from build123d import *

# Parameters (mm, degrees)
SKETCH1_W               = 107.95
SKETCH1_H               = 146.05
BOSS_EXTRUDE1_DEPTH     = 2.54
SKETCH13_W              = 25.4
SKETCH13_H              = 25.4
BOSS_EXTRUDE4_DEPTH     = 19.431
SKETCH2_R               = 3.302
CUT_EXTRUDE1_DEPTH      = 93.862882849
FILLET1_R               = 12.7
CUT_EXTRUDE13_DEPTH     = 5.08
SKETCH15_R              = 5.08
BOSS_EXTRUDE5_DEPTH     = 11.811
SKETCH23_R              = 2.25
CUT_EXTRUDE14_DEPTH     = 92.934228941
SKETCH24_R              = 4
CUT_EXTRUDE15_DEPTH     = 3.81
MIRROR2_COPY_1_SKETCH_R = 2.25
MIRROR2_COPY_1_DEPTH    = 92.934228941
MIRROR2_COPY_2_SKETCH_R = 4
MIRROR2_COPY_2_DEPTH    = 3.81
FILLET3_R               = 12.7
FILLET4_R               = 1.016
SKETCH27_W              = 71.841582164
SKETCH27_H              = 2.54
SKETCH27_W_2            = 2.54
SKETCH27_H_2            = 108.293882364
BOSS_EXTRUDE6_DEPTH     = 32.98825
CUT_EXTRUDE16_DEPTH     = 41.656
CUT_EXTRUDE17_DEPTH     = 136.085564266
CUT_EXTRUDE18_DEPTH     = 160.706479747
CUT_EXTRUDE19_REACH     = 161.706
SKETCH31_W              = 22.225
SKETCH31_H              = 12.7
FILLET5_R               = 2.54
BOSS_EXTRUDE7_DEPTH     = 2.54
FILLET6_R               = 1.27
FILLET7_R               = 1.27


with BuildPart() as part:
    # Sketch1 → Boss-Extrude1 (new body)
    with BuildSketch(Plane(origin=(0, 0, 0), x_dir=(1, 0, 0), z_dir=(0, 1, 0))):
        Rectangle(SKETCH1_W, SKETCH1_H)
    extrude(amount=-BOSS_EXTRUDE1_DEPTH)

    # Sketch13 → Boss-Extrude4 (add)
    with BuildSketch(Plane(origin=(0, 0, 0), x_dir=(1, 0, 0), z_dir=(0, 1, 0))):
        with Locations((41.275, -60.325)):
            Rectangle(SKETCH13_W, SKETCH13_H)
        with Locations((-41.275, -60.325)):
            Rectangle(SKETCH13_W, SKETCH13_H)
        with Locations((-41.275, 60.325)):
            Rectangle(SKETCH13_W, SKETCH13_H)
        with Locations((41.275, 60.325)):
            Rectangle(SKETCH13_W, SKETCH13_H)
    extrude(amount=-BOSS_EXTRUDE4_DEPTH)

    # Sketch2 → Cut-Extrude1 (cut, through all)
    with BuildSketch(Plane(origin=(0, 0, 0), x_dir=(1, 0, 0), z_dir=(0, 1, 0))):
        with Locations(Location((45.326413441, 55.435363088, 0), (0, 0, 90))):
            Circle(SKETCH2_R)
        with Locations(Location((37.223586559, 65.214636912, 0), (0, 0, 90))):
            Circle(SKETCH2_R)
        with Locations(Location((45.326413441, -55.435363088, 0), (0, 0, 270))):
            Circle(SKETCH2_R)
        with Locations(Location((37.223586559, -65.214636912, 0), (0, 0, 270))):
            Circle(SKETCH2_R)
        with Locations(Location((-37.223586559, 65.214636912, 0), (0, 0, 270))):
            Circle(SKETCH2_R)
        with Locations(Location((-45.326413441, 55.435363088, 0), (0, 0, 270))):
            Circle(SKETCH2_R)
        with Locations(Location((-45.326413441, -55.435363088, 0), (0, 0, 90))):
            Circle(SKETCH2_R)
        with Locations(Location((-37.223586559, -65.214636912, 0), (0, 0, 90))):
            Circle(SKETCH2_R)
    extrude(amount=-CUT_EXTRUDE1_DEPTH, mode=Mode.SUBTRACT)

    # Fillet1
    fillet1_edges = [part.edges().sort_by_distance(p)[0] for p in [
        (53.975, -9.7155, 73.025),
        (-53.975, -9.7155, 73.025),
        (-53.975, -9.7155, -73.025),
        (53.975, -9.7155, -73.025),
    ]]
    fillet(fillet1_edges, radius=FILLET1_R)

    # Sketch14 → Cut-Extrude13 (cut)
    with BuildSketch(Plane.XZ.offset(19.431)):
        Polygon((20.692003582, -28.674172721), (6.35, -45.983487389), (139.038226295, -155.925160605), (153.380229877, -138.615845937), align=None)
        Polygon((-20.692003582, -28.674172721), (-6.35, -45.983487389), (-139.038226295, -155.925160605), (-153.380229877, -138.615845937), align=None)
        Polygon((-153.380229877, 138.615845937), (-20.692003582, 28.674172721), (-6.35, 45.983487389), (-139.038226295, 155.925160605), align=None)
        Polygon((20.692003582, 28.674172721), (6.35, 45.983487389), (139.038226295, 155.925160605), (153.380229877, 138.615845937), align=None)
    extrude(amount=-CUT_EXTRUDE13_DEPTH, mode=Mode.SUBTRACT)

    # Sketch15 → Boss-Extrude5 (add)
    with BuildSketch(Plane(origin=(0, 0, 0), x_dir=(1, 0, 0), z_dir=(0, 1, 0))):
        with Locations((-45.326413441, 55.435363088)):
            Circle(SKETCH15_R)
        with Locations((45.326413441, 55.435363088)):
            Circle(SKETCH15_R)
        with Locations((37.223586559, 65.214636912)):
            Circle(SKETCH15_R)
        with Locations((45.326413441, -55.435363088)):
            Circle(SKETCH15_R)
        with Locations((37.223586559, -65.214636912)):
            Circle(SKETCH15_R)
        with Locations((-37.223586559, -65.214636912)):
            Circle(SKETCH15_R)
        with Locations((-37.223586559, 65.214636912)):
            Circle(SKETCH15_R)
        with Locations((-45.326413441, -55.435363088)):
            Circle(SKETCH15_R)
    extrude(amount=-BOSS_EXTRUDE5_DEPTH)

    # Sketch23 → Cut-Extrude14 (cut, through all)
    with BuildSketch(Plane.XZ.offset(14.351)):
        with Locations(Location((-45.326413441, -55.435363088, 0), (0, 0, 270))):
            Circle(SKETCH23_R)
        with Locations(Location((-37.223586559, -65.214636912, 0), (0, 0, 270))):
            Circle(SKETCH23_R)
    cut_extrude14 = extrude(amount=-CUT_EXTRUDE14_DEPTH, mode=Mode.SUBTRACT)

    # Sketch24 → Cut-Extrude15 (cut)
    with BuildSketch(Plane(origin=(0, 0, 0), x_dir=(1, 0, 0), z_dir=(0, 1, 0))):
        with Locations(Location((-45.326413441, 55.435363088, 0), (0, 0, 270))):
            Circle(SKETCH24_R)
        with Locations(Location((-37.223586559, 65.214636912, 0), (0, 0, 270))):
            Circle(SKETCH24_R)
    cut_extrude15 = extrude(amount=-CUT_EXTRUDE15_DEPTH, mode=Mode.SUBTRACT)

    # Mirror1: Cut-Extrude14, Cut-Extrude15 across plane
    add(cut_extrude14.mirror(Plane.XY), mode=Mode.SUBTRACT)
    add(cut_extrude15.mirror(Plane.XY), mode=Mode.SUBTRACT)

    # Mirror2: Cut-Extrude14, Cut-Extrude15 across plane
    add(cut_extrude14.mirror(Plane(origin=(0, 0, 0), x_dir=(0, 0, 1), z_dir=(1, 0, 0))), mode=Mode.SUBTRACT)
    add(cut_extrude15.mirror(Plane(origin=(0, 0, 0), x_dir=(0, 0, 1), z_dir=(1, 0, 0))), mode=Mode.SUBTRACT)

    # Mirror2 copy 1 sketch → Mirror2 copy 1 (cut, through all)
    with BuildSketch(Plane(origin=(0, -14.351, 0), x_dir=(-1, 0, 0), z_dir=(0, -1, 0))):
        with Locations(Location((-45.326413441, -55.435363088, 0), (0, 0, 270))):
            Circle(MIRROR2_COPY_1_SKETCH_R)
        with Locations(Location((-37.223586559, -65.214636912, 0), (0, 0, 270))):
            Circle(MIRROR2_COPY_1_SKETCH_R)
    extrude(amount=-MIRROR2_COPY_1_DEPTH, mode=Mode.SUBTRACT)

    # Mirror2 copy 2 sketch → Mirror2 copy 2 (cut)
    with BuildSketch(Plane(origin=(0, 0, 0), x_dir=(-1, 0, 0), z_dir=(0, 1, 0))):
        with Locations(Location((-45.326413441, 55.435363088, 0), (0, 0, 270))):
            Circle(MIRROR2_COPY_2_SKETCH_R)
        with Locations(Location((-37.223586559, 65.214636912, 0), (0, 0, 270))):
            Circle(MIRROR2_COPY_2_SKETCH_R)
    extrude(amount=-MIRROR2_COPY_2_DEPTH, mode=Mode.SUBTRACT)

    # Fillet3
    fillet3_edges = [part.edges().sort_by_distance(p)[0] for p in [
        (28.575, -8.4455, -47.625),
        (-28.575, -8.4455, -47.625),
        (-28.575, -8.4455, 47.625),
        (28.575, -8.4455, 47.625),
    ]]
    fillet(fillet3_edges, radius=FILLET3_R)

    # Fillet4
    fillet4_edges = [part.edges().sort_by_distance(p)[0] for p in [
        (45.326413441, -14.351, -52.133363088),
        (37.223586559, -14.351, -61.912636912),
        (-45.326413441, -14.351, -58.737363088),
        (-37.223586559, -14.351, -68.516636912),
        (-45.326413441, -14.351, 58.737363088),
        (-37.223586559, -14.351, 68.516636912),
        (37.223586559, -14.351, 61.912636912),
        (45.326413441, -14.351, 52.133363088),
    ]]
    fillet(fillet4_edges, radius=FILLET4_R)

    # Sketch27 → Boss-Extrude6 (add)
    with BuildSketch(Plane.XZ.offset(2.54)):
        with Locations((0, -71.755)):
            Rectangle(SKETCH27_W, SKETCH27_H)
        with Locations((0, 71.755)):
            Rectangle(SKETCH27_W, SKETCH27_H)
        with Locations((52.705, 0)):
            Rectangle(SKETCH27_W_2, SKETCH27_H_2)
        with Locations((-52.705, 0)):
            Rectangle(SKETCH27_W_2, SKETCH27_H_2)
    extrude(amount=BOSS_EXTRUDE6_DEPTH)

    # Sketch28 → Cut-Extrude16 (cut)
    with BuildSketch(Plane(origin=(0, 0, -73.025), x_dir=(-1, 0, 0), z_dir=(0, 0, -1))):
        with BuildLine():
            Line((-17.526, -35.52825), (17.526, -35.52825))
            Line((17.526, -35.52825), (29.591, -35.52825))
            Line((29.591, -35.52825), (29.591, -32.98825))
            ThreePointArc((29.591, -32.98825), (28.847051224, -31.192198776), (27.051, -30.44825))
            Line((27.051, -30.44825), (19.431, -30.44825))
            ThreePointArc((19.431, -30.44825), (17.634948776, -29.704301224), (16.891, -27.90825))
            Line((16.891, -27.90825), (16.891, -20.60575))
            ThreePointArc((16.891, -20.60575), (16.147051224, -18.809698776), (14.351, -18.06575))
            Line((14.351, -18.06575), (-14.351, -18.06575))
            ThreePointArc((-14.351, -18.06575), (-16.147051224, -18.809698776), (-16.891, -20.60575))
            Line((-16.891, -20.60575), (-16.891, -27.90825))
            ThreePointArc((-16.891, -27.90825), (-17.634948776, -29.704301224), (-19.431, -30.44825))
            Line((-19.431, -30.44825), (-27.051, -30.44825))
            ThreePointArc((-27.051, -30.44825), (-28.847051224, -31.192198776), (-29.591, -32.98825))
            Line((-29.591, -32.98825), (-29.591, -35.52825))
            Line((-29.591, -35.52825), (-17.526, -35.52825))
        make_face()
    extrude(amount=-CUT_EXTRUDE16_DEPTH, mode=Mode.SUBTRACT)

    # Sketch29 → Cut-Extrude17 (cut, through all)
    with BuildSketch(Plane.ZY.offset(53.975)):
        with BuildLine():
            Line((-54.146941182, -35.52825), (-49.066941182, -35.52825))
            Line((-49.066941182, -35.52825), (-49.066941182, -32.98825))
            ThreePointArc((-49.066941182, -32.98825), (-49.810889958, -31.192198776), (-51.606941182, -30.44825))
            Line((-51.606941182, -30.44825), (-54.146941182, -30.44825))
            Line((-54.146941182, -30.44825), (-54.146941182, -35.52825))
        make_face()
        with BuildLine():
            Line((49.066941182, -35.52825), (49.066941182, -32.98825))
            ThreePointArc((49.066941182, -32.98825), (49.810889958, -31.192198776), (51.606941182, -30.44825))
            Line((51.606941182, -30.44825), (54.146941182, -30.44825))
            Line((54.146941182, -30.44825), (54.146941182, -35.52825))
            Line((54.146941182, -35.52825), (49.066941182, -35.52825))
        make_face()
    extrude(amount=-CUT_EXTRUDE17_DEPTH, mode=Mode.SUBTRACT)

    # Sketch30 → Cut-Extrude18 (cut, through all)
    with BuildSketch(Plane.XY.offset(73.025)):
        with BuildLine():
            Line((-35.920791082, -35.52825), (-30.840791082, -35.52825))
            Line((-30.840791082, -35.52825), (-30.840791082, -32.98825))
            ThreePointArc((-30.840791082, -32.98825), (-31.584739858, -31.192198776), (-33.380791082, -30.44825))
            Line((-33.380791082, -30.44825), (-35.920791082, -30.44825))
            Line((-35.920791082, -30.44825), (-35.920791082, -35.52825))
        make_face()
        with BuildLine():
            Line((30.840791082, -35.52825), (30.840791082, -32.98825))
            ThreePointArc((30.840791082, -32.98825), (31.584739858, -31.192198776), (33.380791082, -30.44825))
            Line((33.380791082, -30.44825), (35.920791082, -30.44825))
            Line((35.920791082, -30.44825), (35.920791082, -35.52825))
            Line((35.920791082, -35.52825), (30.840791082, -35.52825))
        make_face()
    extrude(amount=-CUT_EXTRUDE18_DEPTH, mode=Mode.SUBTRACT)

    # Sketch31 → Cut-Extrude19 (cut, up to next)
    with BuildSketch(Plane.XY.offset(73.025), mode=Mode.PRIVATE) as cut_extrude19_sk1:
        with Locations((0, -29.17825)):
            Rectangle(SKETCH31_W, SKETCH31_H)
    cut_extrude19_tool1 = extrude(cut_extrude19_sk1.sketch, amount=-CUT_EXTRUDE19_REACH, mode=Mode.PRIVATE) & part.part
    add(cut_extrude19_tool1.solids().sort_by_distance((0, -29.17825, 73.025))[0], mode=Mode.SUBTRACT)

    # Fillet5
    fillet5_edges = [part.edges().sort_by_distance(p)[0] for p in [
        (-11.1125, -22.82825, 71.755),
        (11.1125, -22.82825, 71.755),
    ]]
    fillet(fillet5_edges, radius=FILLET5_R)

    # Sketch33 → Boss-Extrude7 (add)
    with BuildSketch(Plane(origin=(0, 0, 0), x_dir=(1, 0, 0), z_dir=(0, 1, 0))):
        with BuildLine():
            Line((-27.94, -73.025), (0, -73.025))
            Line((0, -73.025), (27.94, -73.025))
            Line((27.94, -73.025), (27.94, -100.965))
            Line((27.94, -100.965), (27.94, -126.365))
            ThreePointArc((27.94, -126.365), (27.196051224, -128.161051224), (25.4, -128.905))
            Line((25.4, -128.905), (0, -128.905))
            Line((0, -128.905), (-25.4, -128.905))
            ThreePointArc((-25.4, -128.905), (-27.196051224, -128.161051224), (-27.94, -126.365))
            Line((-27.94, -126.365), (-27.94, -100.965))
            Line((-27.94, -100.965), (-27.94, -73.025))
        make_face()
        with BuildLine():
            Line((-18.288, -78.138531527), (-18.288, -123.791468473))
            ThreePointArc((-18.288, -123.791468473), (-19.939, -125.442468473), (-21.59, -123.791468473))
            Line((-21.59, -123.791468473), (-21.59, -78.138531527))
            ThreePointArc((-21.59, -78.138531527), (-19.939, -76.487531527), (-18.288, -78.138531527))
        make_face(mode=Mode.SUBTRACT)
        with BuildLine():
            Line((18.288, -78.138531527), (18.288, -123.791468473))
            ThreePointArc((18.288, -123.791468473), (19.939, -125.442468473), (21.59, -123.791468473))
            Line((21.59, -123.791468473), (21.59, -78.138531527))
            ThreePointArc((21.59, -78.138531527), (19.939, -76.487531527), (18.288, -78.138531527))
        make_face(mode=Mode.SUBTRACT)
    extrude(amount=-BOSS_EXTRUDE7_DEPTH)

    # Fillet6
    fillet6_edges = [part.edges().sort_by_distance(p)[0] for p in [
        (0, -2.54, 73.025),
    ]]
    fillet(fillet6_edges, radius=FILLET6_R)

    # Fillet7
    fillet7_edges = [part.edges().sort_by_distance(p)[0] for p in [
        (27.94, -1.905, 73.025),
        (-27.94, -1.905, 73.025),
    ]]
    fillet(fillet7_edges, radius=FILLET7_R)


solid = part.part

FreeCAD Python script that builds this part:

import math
import FreeCAD as App
import Part
import Sketcher

V = App.Vector
Q = App.Units.Quantity


def edges_at(feature, points):
    """Names of the edges that pass closest to the given points."""
    edges = feature.Shape.Edges
    near = lambda p: min(range(len(edges)), key=lambda i: edges[i].distToShape(Part.Vertex(*p))[0])
    return sorted({f"Edge{near(p) + 1}" for p in points})

doc = App.newDocument("Part")
body = doc.addObject("PartDesign::Body", "Body")

# Sketch on XZ plane
sketch1 = body.newObject("Sketcher::SketchObject", "Sketch")
sketch1.AttachmentSupport = (doc.getObject("XZ_Plane"), [""])
sketch1.MapMode = "FlatFace"
sketch1.addGeometry([
    Part.LineSegment(V(-53.975, -73.025, 0), V(-53.975, 73.025, 0)),
    Part.LineSegment(V(-53.975, 73.025, 0), V(53.975, 73.025, 0)),
    Part.LineSegment(V(53.975, 73.025, 0), V(53.975, -73.025, 0)),
    Part.LineSegment(V(53.975, -73.025, 0), V(-53.975, -73.025, 0)),
], False)
sketch1.addConstraint([
    Sketcher.Constraint("Coincident", 0, 2, 1, 1),
    Sketcher.Constraint("Coincident", 1, 2, 2, 1),
    Sketcher.Constraint("Coincident", 2, 2, 3, 1),
    Sketcher.Constraint("Coincident", 3, 2, 0, 1),
    Sketcher.Constraint("Vertical", 0),
    Sketcher.Constraint("Horizontal", 1),
    Sketcher.Constraint("Vertical", 2),
    Sketcher.Constraint("Horizontal", 3),
    Sketcher.Constraint("Symmetric", 0, 2, 2, 2, -1, 1),
    Sketcher.Constraint("DistanceX", 1, 1, 1, 2, Q("4.25 in")),
    Sketcher.Constraint("DistanceY", 0, 1, 0, 2, Q("5.75 in")),
])
pad1 = body.newObject("PartDesign::Pad", "Pad")
pad1.Profile = sketch1
pad1.Length = Q("0.1 in")

# Sketch on XZ plane
sketch2 = body.newObject("Sketcher::SketchObject", "Sketch001")
sketch2.AttachmentSupport = (doc.getObject("XZ_Plane"), [""])
sketch2.MapMode = "FlatFace"
sketch2.addGeometry([
    Part.LineSegment(V(28.575, 47.625, 0), V(28.575, 73.025, 0)),  # 0
    Part.LineSegment(V(28.575, 73.025, 0), V(53.975, 73.025, 0)),  # 1
    Part.LineSegment(V(53.975, 73.025, 0), V(53.975, 47.625, 0)),  # 2
    Part.LineSegment(V(53.975, 47.625, 0), V(28.575, 47.625, 0)),  # 3
    Part.LineSegment(V(-53.975, 47.625, 0), V(-53.975, 73.025, 0)),  # 4
    Part.LineSegment(V(-53.975, 73.025, 0), V(-28.575, 73.025, 0)),  # 5
    Part.LineSegment(V(-28.575, 73.025, 0), V(-28.575, 47.625, 0)),  # 6
    Part.LineSegment(V(-28.575, 47.625, 0), V(-53.975, 47.625, 0)),  # 7
    Part.LineSegment(V(-53.975, -73.025, 0), V(-53.975, -47.625, 0)),  # 8
    Part.LineSegment(V(-53.975, -47.625, 0), V(-28.575, -47.625, 0)),  # 9
    Part.LineSegment(V(-28.575, -47.625, 0), V(-28.575, -73.025, 0)),  # 10
    Part.LineSegment(V(-28.575, -73.025, 0), V(-53.975, -73.025, 0)),  # 11
    Part.LineSegment(V(28.575, -73.025, 0), V(28.575, -47.625, 0)),  # 12
    Part.LineSegment(V(28.575, -47.625, 0), V(53.975, -47.625, 0)),  # 13
    Part.LineSegment(V(53.975, -47.625, 0), V(53.975, -73.025, 0)),  # 14
    Part.LineSegment(V(53.975, -73.025, 0), V(28.575, -73.025, 0)),  # 15
], False)
sketch2.addConstraint([
    Sketcher.Constraint("Coincident", 0, 2, 1, 1),
    Sketcher.Constraint("Coincident", 1, 2, 2, 1),
    Sketcher.Constraint("Coincident", 2, 2, 3, 1),
    Sketcher.Constraint("Coincident", 3, 2, 0, 1),
    Sketcher.Constraint("Coincident", 4, 2, 5, 1),
    Sketcher.Constraint("Coincident", 5, 2, 6, 1),
    Sketcher.Constraint("Coincident", 6, 2, 7, 1),
    Sketcher.Constraint("Coincident", 7, 2, 4, 1),
    Sketcher.Constraint("Coincident", 8, 2, 9, 1),
    Sketcher.Constraint("Coincident", 9, 2, 10, 1),
    Sketcher.Constraint("Coincident", 10, 2, 11, 1),
    Sketcher.Constraint("Coincident", 11, 2, 8, 1),
    Sketcher.Constraint("Coincident", 12, 2, 13, 1),
    Sketcher.Constraint("Coincident", 13, 2, 14, 1),
    Sketcher.Constraint("Coincident", 14, 2, 15, 1),
    Sketcher.Constraint("Coincident", 15, 2, 12, 1),
    Sketcher.Constraint("Vertical", 0),
    Sketcher.Constraint("Horizontal", 1),
    Sketcher.Constraint("Vertical", 2),
    Sketcher.Constraint("Horizontal", 3),
    Sketcher.Constraint("Vertical", 4),
    Sketcher.Constraint("Horizontal", 5),
    Sketcher.Constraint("Vertical", 6),
    Sketcher.Constraint("Horizontal", 7),
    Sketcher.Constraint("Vertical", 8),
    Sketcher.Constraint("Horizontal", 9),
    Sketcher.Constraint("Vertical", 10),
    Sketcher.Constraint("Horizontal", 11),
    Sketcher.Constraint("Vertical", 12),
    Sketcher.Constraint("Horizontal", 13),
    Sketcher.Constraint("Vertical", 14),
    Sketcher.Constraint("Horizontal", 15),
    Sketcher.Constraint("Symmetric", 2, 2, 8, 2, -1, 1),
    Sketcher.Constraint("Symmetric", 0, 2, 10, 2, -1, 1),
    Sketcher.Constraint("Symmetric", 6, 2, 12, 2, -1, 1),
    Sketcher.Constraint("Symmetric", 4, 2, 14, 2, -1, 1),
    Sketcher.Constraint("Symmetric", 1, 2, 4, 2, -2),
    Sketcher.Constraint("Symmetric", 3, 2, 6, 2, -2),
    Sketcher.Constraint("Equal", 15, 0),
    Sketcher.Constraint("DistanceX", 1, 1, 1, 2, Q("1 in")),
    Sketcher.Constraint("DistanceX", 4, 2, 0, 2, Q("3.25 in")),
    Sketcher.Constraint("DistanceY", 8, 2, 7, 2, Q("3.75 in")),
])
pad2 = body.newObject("PartDesign::Pad", "Pad001")
pad2.Profile = sketch2
pad2.Length = Q("0.765 in")

# Sketch on XZ plane
sketch3 = body.newObject("Sketcher::SketchObject", "Sketch002")
sketch3.AttachmentSupport = (doc.getObject("XZ_Plane"), [""])
sketch3.MapMode = "FlatFace"
sketch3.addGeometry([
    Part.Circle(V(45.326413, -55.435363, 0), V(0, 0, 1), 3.302),  # 0
    Part.Circle(V(37.223587, -65.214637, 0), V(0, 0, 1), 3.302),  # 1
    Part.Circle(V(45.326413, 55.435363, 0), V(0, 0, 1), 3.302),  # 2
    Part.Circle(V(37.223587, 65.214637, 0), V(0, 0, 1), 3.302),  # 3
    Part.Circle(V(-37.223587, -65.214637, 0), V(0, 0, 1), 3.302),  # 4
    Part.Circle(V(-45.326413, -55.435363, 0), V(0, 0, 1), 3.302),  # 5
    Part.Circle(V(-45.326413, 55.435363, 0), V(0, 0, 1), 3.302),  # 6
    Part.Circle(V(-37.223587, 65.214637, 0), V(0, 0, 1), 3.302),  # 7
], False)
sketch3.addConstraint([
    Sketcher.Constraint("Equal", 0, 1),
    Sketcher.Constraint("Equal", 1, 2),
    Sketcher.Constraint("Equal", 2, 3),
    Sketcher.Constraint("Equal", 3, 4),
    Sketcher.Constraint("Equal", 4, 5),
    Sketcher.Constraint("Equal", 5, 6),
    Sketcher.Constraint("Equal", 6, 7),
    Sketcher.Constraint("Symmetric", 3, 3, 4, 3, -1, 1),
    Sketcher.Constraint("Symmetric", 2, 3, 5, 3, -1, 1),
    Sketcher.Constraint("Symmetric", 0, 3, 6, 3, -1, 1),
    Sketcher.Constraint("Symmetric", 1, 3, 7, 3, -1, 1),
    Sketcher.Constraint("Symmetric", 1, 3, 4, 3, -2),
    Sketcher.Constraint("Symmetric", 0, 3, 5, 3, -2),
    Sketcher.Constraint("Diameter", 0, Q("0.26 in")),
    Sketcher.Constraint("DistanceY", 1, 3, 2, 3, Q("4.75 in")),
    Sketcher.Constraint("DistanceX", 4, 3, 0, 3, Q("3.25 in")),
    Sketcher.Constraint("DistanceX", -1, 1, 0, 3, Q("45.326413 mm")),
    Sketcher.Constraint("DistanceY", 0, 3, -1, 1, Q("55.435363 mm")),
])
pocket1 = body.newObject("PartDesign::Pocket", "Pocket")
pocket1.Profile = sketch3
pocket1.Type = "ThroughAll"
pocket1.Reversed = True
doc.recompute()

fillet = body.newObject("PartDesign::Fillet", "Fillet")
fillet.Base = (pocket1, edges_at(pocket1, [
    (53.975, -9.716, 73.025),
    (-53.975, -9.716, 73.025),
    (-53.975, -9.716, -73.025),
    (53.975, -9.716, -73.025),
]))
fillet.Radius = Q("0.5 in")

# Sketch on XZ plane
sketch4 = body.newObject("Sketcher::SketchObject", "Sketch003")
sketch4.AttachmentSupport = (doc.getObject("XZ_Plane"), [""])
sketch4.MapMode = "FlatFace"
sketch4.AttachmentOffset = App.Placement(V(0, 0, 0.765 * 25.4), App.Rotation())
sketch4.addGeometry([
    Part.LineSegment(V(20.692004, -28.674173, 0), V(6.35, -45.983487, 0)),  # 0
    Part.LineSegment(V(6.35, -45.983487, 0), V(139.038226, -155.925161, 0)),  # 1
    Part.LineSegment(V(139.038226, -155.925161, 0), V(153.38023, -138.615846, 0)),  # 2
    Part.LineSegment(V(153.38023, -138.615846, 0), V(20.692004, -28.674173, 0)),  # 3
    Part.LineSegment(V(-6.35, -45.983487, 0), V(-20.692004, -28.674173, 0)),  # 4
    Part.LineSegment(V(-20.692004, -28.674173, 0), V(-153.38023, -138.615846, 0)),  # 5
    Part.LineSegment(V(-153.38023, -138.615846, 0), V(-139.038226, -155.925161, 0)),  # 6
    Part.LineSegment(V(-139.038226, -155.925161, 0), V(-6.35, -45.983487, 0)),  # 7
    Part.LineSegment(V(-153.38023, 138.615846, 0), V(-20.692004, 28.674173, 0)),  # 8
    Part.LineSegment(V(-20.692004, 28.674173, 0), V(-6.35, 45.983487, 0)),  # 9
    Part.LineSegment(V(-6.35, 45.983487, 0), V(-139.038226, 155.925161, 0)),  # 10
    Part.LineSegment(V(-139.038226, 155.925161, 0), V(-153.38023, 138.615846, 0)),  # 11
    Part.LineSegment(V(6.35, 45.983487, 0), V(20.692004, 28.674173, 0)),  # 12
    Part.LineSegment(V(20.692004, 28.674173, 0), V(153.38023, 138.615846, 0)),  # 13
    Part.LineSegment(V(153.38023, 138.615846, 0), V(139.038226, 155.925161, 0)),  # 14
    Part.LineSegment(V(139.038226, 155.925161, 0), V(6.35, 45.983487, 0)),  # 15
], False)
sketch4.addConstraint([
    Sketcher.Constraint("Coincident", 0, 2, 1, 1),
    Sketcher.Constraint("Coincident", 1, 2, 2, 1),
    Sketcher.Constraint("Coincident", 2, 2, 3, 1),
    Sketcher.Constraint("Coincident", 3, 2, 0, 1),
    Sketcher.Constraint("Coincident", 4, 2, 5, 1),
    Sketcher.Constraint("Coincident", 5, 2, 6, 1),
    Sketcher.Constraint("Coincident", 6, 2, 7, 1),
    Sketcher.Constraint("Coincident", 7, 2, 4, 1),
    Sketcher.Constraint("Coincident", 8, 2, 9, 1),
    Sketcher.Constraint("Coincident", 9, 2, 10, 1),
    Sketcher.Constraint("Coincident", 10, 2, 11, 1),
    Sketcher.Constraint("Coincident", 11, 2, 8, 1),
    Sketcher.Constraint("Coincident", 12, 2, 13, 1),
    Sketcher.Constraint("Coincident", 13, 2, 14, 1),
    Sketcher.Constraint("Coincident", 14, 2, 15, 1),
    Sketcher.Constraint("Coincident", 15, 2, 12, 1),
    Sketcher.Constraint("Symmetric", 3, 2, 8, 2, -1, 1),
    Sketcher.Constraint("Symmetric", 0, 2, 9, 2, -1, 1),
    Sketcher.Constraint("Symmetric", 1, 2, 10, 2, -1, 1),
    Sketcher.Constraint("Symmetric", 2, 2, 11, 2, -1, 1),
    Sketcher.Constraint("Symmetric", 4, 2, 12, 2, -1, 1),
    Sketcher.Constraint("Symmetric", 5, 2, 13, 2, -1, 1),
    Sketcher.Constraint("Symmetric", 6, 2, 14, 2, -1, 1),
    Sketcher.Constraint("Symmetric", 7, 2, 15, 2, -1, 1),
    Sketcher.Constraint("Symmetric", 3, 2, 4, 2, -2),
    Sketcher.Constraint("Symmetric", 2, 2, 5, 2, -2),
    Sketcher.Constraint("Symmetric", 1, 2, 6, 2, -2),
    Sketcher.Constraint("Symmetric", 0, 2, 7, 2, -2),
    Sketcher.Constraint("Perpendicular", 0, 1),
    Sketcher.Constraint("Perpendicular", 1, 2),
    Sketcher.Constraint("Perpendicular", 2, 3),
    Sketcher.Constraint("DistanceX", 7, 2, 0, 2, Q("0.5 in")),
    Sketcher.Constraint("Distance", 0, Q("0.885 in")),
    Sketcher.Constraint("DistanceX", 3, 2, 1, 2, Q("4.6593001 in")),
    Sketcher.Constraint("DistanceY", 1, 2, -1, 1, Q("155.925161 mm")),
    Sketcher.Constraint("DistanceX", -1, 1, 2, 2, Q("153.38023 mm")),
])
pocket2 = body.newObject("PartDesign::Pocket", "Pocket001")
pocket2.Profile = sketch4
pocket2.Length = Q("0.2 in")

# Sketch on XZ plane
sketch5 = body.newObject("Sketcher::SketchObject", "Sketch004")
sketch5.AttachmentSupport = (doc.getObject("XZ_Plane"), [""])
sketch5.MapMode = "FlatFace"
sketch5.addGeometry([
    Part.Circle(V(-45.326413, -55.435363, 0), V(0, 0, 1), 5.08),  # 0
    Part.Circle(V(45.326413, -55.435363, 0), V(0, 0, 1), 5.08),  # 1
    Part.Circle(V(37.223587, -65.214637, 0), V(0, 0, 1), 5.08),  # 2
    Part.Circle(V(45.326413, 55.435363, 0), V(0, 0, 1), 5.08),  # 3
    Part.Circle(V(37.223587, 65.214637, 0), V(0, 0, 1), 5.08),  # 4
    Part.Circle(V(-37.223587, 65.214637, 0), V(0, 0, 1), 5.08),  # 5
    Part.Circle(V(-37.223587, -65.214637, 0), V(0, 0, 1), 5.08),  # 6
    Part.Circle(V(-45.326413, 55.435363, 0), V(0, 0, 1), 5.08),  # 7
], False)
sketch5.addConstraint([
    Sketcher.Constraint("Equal", 0, 1),
    Sketcher.Constraint("Equal", 1, 2),
    Sketcher.Constraint("Equal", 2, 3),
    Sketcher.Constraint("Equal", 3, 4),
    Sketcher.Constraint("Equal", 4, 5),
    Sketcher.Constraint("Equal", 5, 6),
    Sketcher.Constraint("Equal", 6, 7),
    Sketcher.Constraint("Symmetric", 0, 3, 3, 3, -1, 1),
    Sketcher.Constraint("Symmetric", 2, 3, 5, 3, -1, 1),
    Sketcher.Constraint("Symmetric", 4, 3, 6, 3, -1, 1),
    Sketcher.Constraint("Symmetric", 1, 3, 7, 3, -1, 1),
    Sketcher.Constraint("Symmetric", 0, 3, 1, 3, -2),
    Sketcher.Constraint("Symmetric", 4, 3, 5, 3, -2),
    Sketcher.Constraint("Diameter", 0, Q("0.4 in")),
    Sketcher.Constraint("DistanceX", 0, 3, 2, 3, Q("3.25 in")),
    Sketcher.Constraint("DistanceY", 2, 3, 3, 3, Q("4.75 in")),
    Sketcher.Constraint("DistanceX", 0, 3, -1, 1, Q("45.326413 mm")),
    Sketcher.Constraint("DistanceY", 0, 3, -1, 1, Q("55.435363 mm")),
])
pad3 = body.newObject("PartDesign::Pad", "Pad002")
pad3.Profile = sketch5
pad3.Length = Q("0.465 in")

# Sketch on XZ plane
sketch6 = body.newObject("Sketcher::SketchObject", "Sketch005")
sketch6.AttachmentSupport = (doc.getObject("XZ_Plane"), [""])
sketch6.MapMode = "FlatFace"
sketch6.AttachmentOffset = App.Placement(V(0, 0, 0.565 * 25.4), App.Rotation())
sketch6.addGeometry([
    Part.Circle(V(-45.326413, -55.435363, 0), V(0, 0, 1), 2.25),
    Part.Circle(V(-37.223587, -65.214637, 0), V(0, 0, 1), 2.25),
], False)
sketch6.addConstraint([
    Sketcher.Constraint("Equal", 0, 1),
    Sketcher.Constraint("Diameter", 0, Q("4.5 mm")),
    Sketcher.Constraint("DistanceX", 0, 3, -1, 1, Q("45.326413 mm")),
    Sketcher.Constraint("DistanceY", 0, 3, -1, 1, Q("55.435363 mm")),
    Sketcher.Constraint("DistanceX", 1, 3, -1, 1, Q("37.223587 mm")),
    Sketcher.Constraint("DistanceY", 1, 3, -1, 1, Q("65.214637 mm")),
])
pocket3 = body.newObject("PartDesign::Pocket", "Pocket002")
pocket3.Profile = sketch6
pocket3.Type = "ThroughAll"

# Sketch on XZ plane
sketch7 = body.newObject("Sketcher::SketchObject", "Sketch006")
sketch7.AttachmentSupport = (doc.getObject("XZ_Plane"), [""])
sketch7.MapMode = "FlatFace"
sketch7.addGeometry([
    Part.Circle(V(-45.326413, -55.435363, 0), V(0, 0, 1), 4),
    Part.Circle(V(-37.223587, -65.214637, 0), V(0, 0, 1), 4),
], False)
sketch7.addConstraint([
    Sketcher.Constraint("Equal", 0, 1),
    Sketcher.Constraint("Diameter", 0, Q("8 mm")),
    Sketcher.Constraint("DistanceX", 0, 3, -1, 1, Q("45.326413 mm")),
    Sketcher.Constraint("DistanceY", 0, 3, -1, 1, Q("55.435363 mm")),
    Sketcher.Constraint("DistanceX", 1, 3, -1, 1, Q("37.223587 mm")),
    Sketcher.Constraint("DistanceY", 1, 3, -1, 1, Q("65.214637 mm")),
])
pocket4 = body.newObject("PartDesign::Pocket", "Pocket003")
pocket4.Profile = sketch7
pocket4.Length = Q("0.15 in")
pocket4.Reversed = True
doc.recompute()

mirrored = body.newObject("PartDesign::Mirrored", "Mirrored")
mirrored.Originals = [pocket3, pocket4]
mirrored.MirrorPlane = (doc.getObject("XY_Plane"), [""])
body.Tip = mirrored
doc.recompute()

mirrored2 = body.newObject("PartDesign::Mirrored", "Mirrored001")
mirrored2.Originals = [pocket3, pocket4]
mirrored2.MirrorPlane = (doc.getObject("YZ_Plane"), [""])
body.Tip = mirrored2

# Sketch on XZ plane
sketch8 = body.newObject("Sketcher::SketchObject", "Sketch007")
sketch8.AttachmentSupport = (doc.getObject("XZ_Plane"), [""])
sketch8.MapMode = "FlatFace"
sketch8.AttachmentOffset = App.Placement(V(0, 0, 0.565 * 25.4), App.Rotation())
sketch8.addGeometry([
    Part.Circle(V(45.326413, 55.435363, 0), V(0, 0, 1), 2.25),
    Part.Circle(V(37.223587, 65.214637, 0), V(0, 0, 1), 2.25),
], False)
sketch8.addConstraint([
    Sketcher.Constraint("Equal", 0, 1),
    Sketcher.Constraint("Diameter", 0, Q("4.5 mm")),
    Sketcher.Constraint("DistanceX", -1, 1, 0, 3, Q("45.326413 mm")),
    Sketcher.Constraint("DistanceY", -1, 1, 0, 3, Q("55.435363 mm")),
    Sketcher.Constraint("DistanceX", -1, 1, 1, 3, Q("37.223587 mm")),
    Sketcher.Constraint("DistanceY", -1, 1, 1, 3, Q("65.214637 mm")),
])
pocket5 = body.newObject("PartDesign::Pocket", "Pocket004")
pocket5.Profile = sketch8
pocket5.Type = "ThroughAll"

# Sketch on XZ plane
sketch9 = body.newObject("Sketcher::SketchObject", "Sketch008")
sketch9.AttachmentSupport = (doc.getObject("XZ_Plane"), [""])
sketch9.MapMode = "FlatFace"
sketch9.addGeometry([
    Part.Circle(V(45.326413, 55.435363, 0), V(0, 0, 1), 4),
    Part.Circle(V(37.223587, 65.214637, 0), V(0, 0, 1), 4),
], False)
sketch9.addConstraint([
    Sketcher.Constraint("Equal", 0, 1),
    Sketcher.Constraint("Diameter", 0, Q("8 mm")),
    Sketcher.Constraint("DistanceX", -1, 1, 0, 3, Q("45.326413 mm")),
    Sketcher.Constraint("DistanceY", -1, 1, 0, 3, Q("55.435363 mm")),
    Sketcher.Constraint("DistanceX", -1, 1, 1, 3, Q("37.223587 mm")),
    Sketcher.Constraint("DistanceY", -1, 1, 1, 3, Q("65.214637 mm")),
])
pocket6 = body.newObject("PartDesign::Pocket", "Pocket005")
pocket6.Profile = sketch9
pocket6.Length = Q("0.15 in")
pocket6.Reversed = True
doc.recompute()

fillet2 = body.newObject("PartDesign::Fillet", "Fillet001")
fillet2.Base = (pocket6, edges_at(pocket6, [
    (28.575, -8.445, -47.625),
    (-28.575, -8.445, -47.625),
    (-28.575, -8.445, 47.625),
    (28.575, -8.445, 47.625),
]))
fillet2.Radius = Q("0.5 in")
doc.recompute()

fillet3 = body.newObject("PartDesign::Fillet", "Fillet002")
fillet3.Base = (fillet2, edges_at(fillet2, [
    (45.326, -14.351, -52.133),
    (37.224, -14.351, -61.913),
    (-45.326, -14.351, -58.737),
    (-37.224, -14.351, -68.517),
    (-45.326, -14.351, 58.737),
    (-37.224, -14.351, 68.517),
    (37.224, -14.351, 61.913),
    (45.326, -14.351, 52.133),
]))
fillet3.Radius = Q("0.04 in")

# Sketch on XZ plane
sketch10 = body.newObject("Sketcher::SketchObject", "Sketch009")
sketch10.AttachmentSupport = (doc.getObject("XZ_Plane"), [""])
sketch10.MapMode = "FlatFace"
sketch10.AttachmentOffset = App.Placement(V(0, 0, 0.1 * 25.4), App.Rotation())
sketch10.addGeometry([
    Part.LineSegment(V(-35.920791, -70.485, 0), V(-35.920791, -73.025, 0)),  # 0
    Part.LineSegment(V(-35.920791, -73.025, 0), V(35.920791, -73.025, 0)),  # 1
    Part.LineSegment(V(35.920791, -73.025, 0), V(35.920791, -70.485, 0)),  # 2
    Part.LineSegment(V(35.920791, -70.485, 0), V(-35.920791, -70.485, 0)),  # 3
    Part.LineSegment(V(-35.920791, 73.025, 0), V(-35.920791, 70.485, 0)),  # 4
    Part.LineSegment(V(-35.920791, 70.485, 0), V(35.920791, 70.485, 0)),  # 5
    Part.LineSegment(V(35.920791, 70.485, 0), V(35.920791, 73.025, 0)),  # 6
    Part.LineSegment(V(35.920791, 73.025, 0), V(-35.920791, 73.025, 0)),  # 7
    Part.LineSegment(V(51.435, 54.146941, 0), V(51.435, -54.146941, 0)),  # 8
    Part.LineSegment(V(51.435, -54.146941, 0), V(53.975, -54.146941, 0)),  # 9
    Part.LineSegment(V(53.975, -54.146941, 0), V(53.975, 54.146941, 0)),  # 10
    Part.LineSegment(V(53.975, 54.146941, 0), V(51.435, 54.146941, 0)),  # 11
    Part.LineSegment(V(-53.975, 54.146941, 0), V(-53.975, -54.146941, 0)),  # 12
    Part.LineSegment(V(-53.975, -54.146941, 0), V(-51.435, -54.146941, 0)),  # 13
    Part.LineSegment(V(-51.435, -54.146941, 0), V(-51.435, 54.146941, 0)),  # 14
    Part.LineSegment(V(-51.435, 54.146941, 0), V(-53.975, 54.146941, 0)),  # 15
], False)
sketch10.addConstraint([
    Sketcher.Constraint("Coincident", 0, 2, 1, 1),
    Sketcher.Constraint("Coincident", 1, 2, 2, 1),
    Sketcher.Constraint("Coincident", 2, 2, 3, 1),
    Sketcher.Constraint("Coincident", 3, 2, 0, 1),
    Sketcher.Constraint("Coincident", 4, 2, 5, 1),
    Sketcher.Constraint("Coincident", 5, 2, 6, 1),
    Sketcher.Constraint("Coincident", 6, 2, 7, 1),
    Sketcher.Constraint("Coincident", 7, 2, 4, 1),
    Sketcher.Constraint("Coincident", 8, 2, 9, 1),
    Sketcher.Constraint("Coincident", 9, 2, 10, 1),
    Sketcher.Constraint("Coincident", 10, 2, 11, 1),
    Sketcher.Constraint("Coincident", 11, 2, 8, 1),
    Sketcher.Constraint("Coincident", 12, 2, 13, 1),
    Sketcher.Constraint("Coincident", 13, 2, 14, 1),
    Sketcher.Constraint("Coincident", 14, 2, 15, 1),
    Sketcher.Constraint("Coincident", 15, 2, 12, 1),
    Sketcher.Constraint("Vertical", 0),
    Sketcher.Constraint("Horizontal", 1),
    Sketcher.Constraint("Vertical", 2),
    Sketcher.Constraint("Horizontal", 3),
    Sketcher.Constraint("Vertical", 4),
    Sketcher.Constraint("Horizontal", 5),
    Sketcher.Constraint("Vertical", 6),
    Sketcher.Constraint("Horizontal", 7),
    Sketcher.Constraint("Vertical", 8),
    Sketcher.Constraint("Horizontal", 9),
    Sketcher.Constraint("Vertical", 10),
    Sketcher.Constraint("Horizontal", 11),
    Sketcher.Constraint("Vertical", 12),
    Sketcher.Constraint("Horizontal", 13),
    Sketcher.Constraint("Vertical", 14),
    Sketcher.Constraint("Horizontal", 15),
    Sketcher.Constraint("Symmetric", 2, 2, 4, 2, -1, 1),
    Sketcher.Constraint("Symmetric", 0, 2, 6, 2, -1, 1),
    Sketcher.Constraint("Symmetric", 10, 2, 12, 2, -1, 1),
    Sketcher.Constraint("Symmetric", 8, 2, 14, 2, -1, 1),
    Sketcher.Constraint("Horizontal", 9, 2, 12, 2),
    Sketcher.Constraint("Vertical", 3, 2, 4, 2),
    Sketcher.Constraint("Equal", 15, 0),
    Sketcher.Constraint("DistanceX", 9, 1, 9, 2, Q("0.1 in")),
    Sketcher.Constraint("DistanceY", 3, 2, 4, 2, Q("5.55 in")),
    Sketcher.Constraint("DistanceX", 12, 2, 8, 2, Q("4.15 in")),
    Sketcher.Constraint("DistanceX", 1, 1, 1, 2, Q("71.841582 mm")),
    Sketcher.Constraint("DistanceY", 8, 2, 8, 1, Q("108.293882 mm")),
])
pad4 = body.newObject("PartDesign::Pad", "Pad003")
pad4.Profile = sketch10
pad4.Length = 32.98825

# Sketch on XY plane
sketch11 = body.newObject("Sketcher::SketchObject", "Sketch010")
sketch11.AttachmentSupport = (doc.getObject("XY_Plane"), [""])
sketch11.MapMode = "FlatFace"
sketch11.AttachmentOffset = App.Placement(V(0, 0, -2.875 * 25.4), App.Rotation())
sketch11.addGeometry([
    Part.LineSegment(V(-29.591, -35.52825, 0), V(-29.591, -32.98825, 0)),  # 0
    Part.ArcOfCircle(Part.Circle(V(-27.051, -32.98825, 0), V(0, 0, 1), 2.54), math.radians(90), math.radians(180)),  # 1
    Part.LineSegment(V(-27.051, -30.44825, 0), V(-19.431, -30.44825, 0)),  # 2
    Part.ArcOfCircle(Part.Circle(V(-19.431, -27.90825, 0), V(0, 0, 1), 2.54), math.radians(-90), math.radians(0)),  # 3
    Part.LineSegment(V(-16.891, -27.90825, 0), V(-16.891, -20.60575, 0)),  # 4
    Part.ArcOfCircle(Part.Circle(V(-14.351, -20.60575, 0), V(0, 0, 1), 2.54), math.radians(90), math.radians(180)),  # 5
    Part.LineSegment(V(-14.351, -18.06575, 0), V(14.351, -18.06575, 0)),  # 6
    Part.ArcOfCircle(Part.Circle(V(14.351, -20.60575, 0), V(0, 0, 1), 2.54), math.radians(0), math.radians(90)),  # 7
    Part.LineSegment(V(16.891, -20.60575, 0), V(16.891, -27.90825, 0)),  # 8
    Part.ArcOfCircle(Part.Circle(V(19.431, -27.90825, 0), V(0, 0, 1), 2.54), math.radians(-180), math.radians(-90)),  # 9
    Part.LineSegment(V(19.431, -30.44825, 0), V(27.051, -30.44825, 0)),  # 10
    Part.ArcOfCircle(Part.Circle(V(27.051, -32.98825, 0), V(0, 0, 1), 2.54), math.radians(0), math.radians(90)),  # 11
    Part.LineSegment(V(29.591, -32.98825, 0), V(29.591, -35.52825, 0)),  # 12
    Part.LineSegment(V(29.591, -35.52825, 0), V(-29.591, -35.52825, 0)),  # 13
], False)
sketch11.addConstraint([
    Sketcher.Constraint("Tangent", 0, 2, 1, 2),
    Sketcher.Constraint("Tangent", 1, 1, 2, 1),
    Sketcher.Constraint("Tangent", 2, 2, 3, 1),
    Sketcher.Constraint("Tangent", 3, 2, 4, 1),
    Sketcher.Constraint("Tangent", 4, 2, 5, 2),
    Sketcher.Constraint("Tangent", 5, 1, 6, 1),
    Sketcher.Constraint("Tangent", 6, 2, 7, 2),
    Sketcher.Constraint("Tangent", 7, 1, 8, 1),
    Sketcher.Constraint("Tangent", 8, 2, 9, 1),
    Sketcher.Constraint("Tangent", 9, 2, 10, 1),
    Sketcher.Constraint("Tangent", 10, 2, 11, 2),
    Sketcher.Constraint("Tangent", 11, 1, 12, 1),
    Sketcher.Constraint("Coincident", 12, 2, 13, 1),
    Sketcher.Constraint("Coincident", 13, 2, 0, 1),
    Sketcher.Constraint("Vertical", 0),
    Sketcher.Constraint("Horizontal", 2),
    Sketcher.Constraint("Vertical", 4),
    Sketcher.Constraint("Horizontal", 6),
    Sketcher.Constraint("Vertical", 8),
    Sketcher.Constraint("Horizontal", 10),
    Sketcher.Constraint("Vertical", 12),
    Sketcher.Constraint("Horizontal", 13),
    Sketcher.Constraint("Equal", 1, 3),
    Sketcher.Constraint("Equal", 3, 5),
    Sketcher.Constraint("Equal", 5, 7),
    Sketcher.Constraint("Equal", 7, 9),
    Sketcher.Constraint("Equal", 9, 11),
    Sketcher.Constraint("Symmetric", 3, 3, 9, 3, -2),
    Sketcher.Constraint("Equal", 2, 10),
    Sketcher.Constraint("Radius", 1, Q("0.1 in")),
    Sketcher.Constraint("DistanceX", 2, 1, 2, 2, Q("0.3 in")),
    Sketcher.Constraint("DistanceY", 0, 1, 0, 2, Q("0.1 in")),
    Sketcher.Constraint("DistanceX", 6, 1, 6, 2, Q("1.13 in")),
    Sketcher.Constraint("DistanceY", 4, 1, 4, 2, Q("0.2875 in")),
    Sketcher.Constraint("DistanceY", 1, 3, -1, 1, Q("32.98825 mm")),
])
pocket7 = body.newObject("PartDesign::Pocket", "Pocket006")
pocket7.Profile = sketch11
pocket7.Length = Q("1.64 in")
pocket7.Reversed = True

# Sketch on YZ plane
sketch12 = body.newObject("Sketcher::SketchObject", "Sketch011")
sketch12.AttachmentSupport = (doc.getObject("YZ_Plane"), [""])
sketch12.MapMode = "FlatFace"
sketch12.AttachmentOffset = App.Placement(V(0, 0, -2.125 * 25.4), App.Rotation())
sketch12.addGeometry([
    Part.LineSegment(V(-35.52825, -54.146941, 0), V(-35.52825, -49.066941, 0)),  # 0
    Part.LineSegment(V(-35.52825, -49.066941, 0), V(-32.98825, -49.066941, 0)),  # 1
    Part.ArcOfCircle(Part.Circle(V(-32.98825, -51.606941, 0), V(0, 0, 1), 2.54), math.radians(0), math.radians(90)),  # 2
    Part.LineSegment(V(-30.44825, -51.606941, 0), V(-30.44825, -54.146941, 0)),  # 3
    Part.LineSegment(V(-30.44825, -54.146941, 0), V(-35.52825, -54.146941, 0)),  # 4
    Part.LineSegment(V(-32.98825, 49.066941, 0), V(-35.52825, 49.066941, 0)),  # 5
    Part.LineSegment(V(-35.52825, 49.066941, 0), V(-35.52825, 54.146941, 0)),  # 6
    Part.LineSegment(V(-35.52825, 54.146941, 0), V(-30.44825, 54.146941, 0)),  # 7
    Part.LineSegment(V(-30.44825, 54.146941, 0), V(-30.44825, 51.606941, 0)),  # 8
    Part.ArcOfCircle(Part.Circle(V(-32.98825, 51.606941, 0), V(0, 0, 1), 2.54), math.radians(-90), math.radians(0)),  # 9
], False)
sketch12.addConstraint([
    Sketcher.Constraint("Coincident", 0, 2, 1, 1),
    Sketcher.Constraint("Tangent", 1, 2, 2, 2),
    Sketcher.Constraint("Tangent", 2, 1, 3, 1),
    Sketcher.Constraint("Coincident", 3, 2, 4, 1),
    Sketcher.Constraint("Coincident", 4, 2, 0, 1),
    Sketcher.Constraint("Coincident", 5, 2, 6, 1),
    Sketcher.Constraint("Coincident", 6, 2, 7, 1),
    Sketcher.Constraint("Coincident", 7, 2, 8, 1),
    Sketcher.Constraint("Tangent", 8, 2, 9, 2),
    Sketcher.Constraint("Tangent", 9, 1, 5, 1),
    Sketcher.Constraint("Vertical", 0),
    Sketcher.Constraint("Horizontal", 1),
    Sketcher.Constraint("Vertical", 3),
    Sketcher.Constraint("Horizontal", 4),
    Sketcher.Constraint("Horizontal", 5),
    Sketcher.Constraint("Vertical", 6),
    Sketcher.Constraint("Horizontal", 7),
    Sketcher.Constraint("Vertical", 8),
    Sketcher.Constraint("Equal", 2, 9),
    Sketcher.Constraint("Symmetric", 2, 3, 9, 3, -1),
    Sketcher.Constraint("Symmetric", 4, 2, 6, 2, -1),
    Sketcher.Constraint("Equal", 7, 0),
    Sketcher.Constraint("Radius", 2, Q("0.1 in")),
    Sketcher.Constraint("DistanceX", 1, 1, 1, 2, Q("0.1 in")),
    Sketcher.Constraint("DistanceX", 2, 3, -1, 1, Q("32.98825 mm")),
    Sketcher.Constraint("DistanceY", 2, 3, -1, 1, Q("51.606941 mm")),
])
pocket8 = body.newObject("PartDesign::Pocket", "Pocket007")
pocket8.Profile = sketch12
pocket8.Type = "ThroughAll"
pocket8.Reversed = True

# Sketch on XY plane
sketch13 = body.newObject("Sketcher::SketchObject", "Sketch012")
sketch13.AttachmentSupport = (doc.getObject("XY_Plane"), [""])
sketch13.MapMode = "FlatFace"
sketch13.AttachmentOffset = App.Placement(V(0, 0, 2.875 * 25.4), App.Rotation())
sketch13.addGeometry([
    Part.LineSegment(V(-35.920791, -35.52825, 0), V(-30.840791, -35.52825, 0)),  # 0
    Part.LineSegment(V(-30.840791, -35.52825, 0), V(-30.840791, -32.98825, 0)),  # 1
    Part.ArcOfCircle(Part.Circle(V(-33.380791, -32.98825, 0), V(0, 0, 1), 2.54), math.radians(0), math.radians(90)),  # 2
    Part.LineSegment(V(-33.380791, -30.44825, 0), V(-35.920791, -30.44825, 0)),  # 3
    Part.LineSegment(V(-35.920791, -30.44825, 0), V(-35.920791, -35.52825, 0)),  # 4
    Part.LineSegment(V(30.840791, -32.98825, 0), V(30.840791, -35.52825, 0)),  # 5
    Part.LineSegment(V(30.840791, -35.52825, 0), V(35.920791, -35.52825, 0)),  # 6
    Part.LineSegment(V(35.920791, -35.52825, 0), V(35.920791, -30.44825, 0)),  # 7
    Part.LineSegment(V(35.920791, -30.44825, 0), V(33.380791, -30.44825, 0)),  # 8
    Part.ArcOfCircle(Part.Circle(V(33.380791, -32.98825, 0), V(0, 0, 1), 2.54), math.radians(90), math.radians(180)),  # 9
], False)
sketch13.addConstraint([
    Sketcher.Constraint("Coincident", 0, 2, 1, 1),
    Sketcher.Constraint("Tangent", 1, 2, 2, 1),
    Sketcher.Constraint("Tangent", 2, 2, 3, 1),
    Sketcher.Constraint("Coincident", 3, 2, 4, 1),
    Sketcher.Constraint("Coincident", 4, 2, 0, 1),
    Sketcher.Constraint("Coincident", 5, 2, 6, 1),
    Sketcher.Constraint("Coincident", 6, 2, 7, 1),
    Sketcher.Constraint("Coincident", 7, 2, 8, 1),
    Sketcher.Constraint("Tangent", 8, 2, 9, 1),
    Sketcher.Constraint("Tangent", 9, 2, 5, 1),
    Sketcher.Constraint("Horizontal", 0),
    Sketcher.Constraint("Vertical", 1),
    Sketcher.Constraint("Horizontal", 3),
    Sketcher.Constraint("Vertical", 4),
    Sketcher.Constraint("Vertical", 5),
    Sketcher.Constraint("Horizontal", 6),
    Sketcher.Constraint("Vertical", 7),
    Sketcher.Constraint("Horizontal", 8),
    Sketcher.Constraint("Equal", 2, 9),
    Sketcher.Constraint("Symmetric", 2, 3, 9, 3, -2),
    Sketcher.Constraint("Symmetric", 4, 2, 6, 2, -2),
    Sketcher.Constraint("Equal", 8, 1),
    Sketcher.Constraint("Radius", 2, Q("0.1 in")),
    Sketcher.Constraint("DistanceX", 0, 1, 0, 2, Q("0.2 in")),
    Sketcher.Constraint("DistanceX", 2, 3, -1, 1, Q("33.380791 mm")),
    Sketcher.Constraint("DistanceY", 2, 3, -1, 1, Q("32.98825 mm")),
])
pocket9 = body.newObject("PartDesign::Pocket", "Pocket008")
pocket9.Profile = sketch13
pocket9.Type = "ThroughAll"

# Sketch on XY plane
sketch14 = body.newObject("Sketcher::SketchObject", "Sketch013")
sketch14.AttachmentSupport = (doc.getObject("XY_Plane"), [""])
sketch14.MapMode = "FlatFace"
sketch14.AttachmentOffset = App.Placement(V(0, 0, 2.875 * 25.4), App.Rotation())
sketch14.addGeometry([
    Part.LineSegment(V(-11.1125, -22.82825, 0), V(-11.1125, -35.52825, 0)),
    Part.LineSegment(V(-11.1125, -35.52825, 0), V(11.1125, -35.52825, 0)),
    Part.LineSegment(V(11.1125, -35.52825, 0), V(11.1125, -22.82825, 0)),
    Part.LineSegment(V(11.1125, -22.82825, 0), V(-11.1125, -22.82825, 0)),
], False)
sketch14.addConstraint([
    Sketcher.Constraint("Coincident", 0, 2, 1, 1),
    Sketcher.Constraint("Coincident", 1, 2, 2, 1),
    Sketcher.Constraint("Coincident", 2, 2, 3, 1),
    Sketcher.Constraint("Coincident", 3, 2, 0, 1),
    Sketcher.Constraint("Vertical", 0),
    Sketcher.Constraint("Horizontal", 1),
    Sketcher.Constraint("Vertical", 2),
    Sketcher.Constraint("Horizontal", 3),
    Sketcher.Constraint("DistanceY", 0, 2, 0, 1, Q("0.5 in")),
    Sketcher.Constraint("DistanceX", 1, 1, 1, 2, Q("0.875 in")),
    Sketcher.Constraint("DistanceX", 0, 2, -1, 1, Q("0.4375 in")),
    Sketcher.Constraint("DistanceY", 0, 2, -1, 1, Q("35.52825 mm")),
])
pocket10 = body.newObject("PartDesign::Pocket", "Pocket009")
pocket10.Profile = sketch14
pocket10.Type = "UpToFirst"
doc.recompute()

fillet4 = body.newObject("PartDesign::Fillet", "Fillet003")
fillet4.Base = (pocket10, edges_at(pocket10, [(-11.113, -22.828, 71.755), (11.113, -22.828, 71.755)]))
fillet4.Radius = Q("0.1 in")

# Sketch on XZ plane
sketch15 = body.newObject("Sketcher::SketchObject", "Sketch014")
sketch15.AttachmentSupport = (doc.getObject("XZ_Plane"), [""])
sketch15.MapMode = "FlatFace"
sketch15.addGeometry([
    Part.LineSegment(V(27.94, 73.025, 0), V(-27.94, 73.025, 0)),  # 0
    Part.LineSegment(V(-27.94, 73.025, 0), V(-27.94, 126.365, 0)),  # 1
    Part.ArcOfCircle(Part.Circle(V(-25.4, 126.365, 0), V(0, 0, 1), 2.54), math.radians(90), math.radians(180)),  # 2
    Part.LineSegment(V(-25.4, 128.905, 0), V(25.4, 128.905, 0)),  # 3
    Part.ArcOfCircle(Part.Circle(V(25.4, 126.365, 0), V(0, 0, 1), 2.54), math.radians(0), math.radians(90)),  # 4
    Part.LineSegment(V(27.94, 126.365, 0), V(27.94, 73.025, 0)),  # 5
    Part.ArcOfCircle(Part.Circle(V(19.939, 78.138532, 0), V(0, 0, 1), 1.651), math.radians(180), math.radians(360)),  # 6
    Part.LineSegment(V(21.59, 78.138532, 0), V(21.59, 123.791468, 0)),  # 7
    Part.ArcOfCircle(Part.Circle(V(19.939, 123.791468, 0), V(0, 0, 1), 1.651), math.radians(0), math.radians(180)),  # 8
    Part.LineSegment(V(18.288, 123.791468, 0), V(18.288, 78.138532, 0)),  # 9
    Part.LineSegment(V(-18.288, 78.138532, 0), V(-18.288, 123.791468, 0)),  # 10
    Part.ArcOfCircle(Part.Circle(V(-19.939, 123.791468, 0), V(0, 0, 1), 1.651), math.radians(0), math.radians(180)),  # 11
    Part.LineSegment(V(-21.59, 123.791468, 0), V(-21.59, 78.138532, 0)),  # 12
    Part.ArcOfCircle(Part.Circle(V(-19.939, 78.138532, 0), V(0, 0, 1), 1.651), math.radians(180), math.radians(360)),  # 13
], False)
sketch15.addConstraint([
    Sketcher.Constraint("Coincident", 0, 2, 1, 1),
    Sketcher.Constraint("Tangent", 1, 2, 2, 2),
    Sketcher.Constraint("Tangent", 2, 1, 3, 1),
    Sketcher.Constraint("Tangent", 3, 2, 4, 2),
    Sketcher.Constraint("Tangent", 4, 1, 5, 1),
    Sketcher.Constraint("Coincident", 5, 2, 0, 1),
    Sketcher.Constraint("Tangent", 6, 2, 7, 1),
    Sketcher.Constraint("Tangent", 7, 2, 8, 1),
    Sketcher.Constraint("Tangent", 8, 2, 9, 1),
    Sketcher.Constraint("Tangent", 9, 2, 6, 1),
    Sketcher.Constraint("Tangent", 10, 2, 11, 1),
    Sketcher.Constraint("Tangent", 11, 2, 12, 1),
    Sketcher.Constraint("Tangent", 12, 2, 13, 1),
    Sketcher.Constraint("Tangent", 13, 2, 10, 1),
    Sketcher.Constraint("Horizontal", 0),
    Sketcher.Constraint("Vertical", 1),
    Sketcher.Constraint("Horizontal", 3),
    Sketcher.Constraint("Vertical", 5),
    Sketcher.Constraint("Vertical", 7),
    Sketcher.Constraint("Vertical", 9),
    Sketcher.Constraint("Vertical", 10),
    Sketcher.Constraint("Vertical", 12),
    Sketcher.Constraint("Equal", 2, 4),
    Sketcher.Constraint("Equal", 8, 11),
    Sketcher.Constraint("Symmetric", 8, 3, 11, 3, -2),
    Sketcher.Constraint("Horizontal", 6, 3, 13, 3),
    Sketcher.Constraint("Radius", 2, Q("0.1 in")),
    Sketcher.Constraint("DistanceX", 3, 1, 3, 2, Q("2 in")),
    Sketcher.Constraint("DistanceY", 1, 1, 1, 2, Q("2.1 in")),
    Sketcher.Constraint("DistanceX", 2, 3, -1, 1, Q("1 in")),
    Sketcher.Constraint("Radius", 6, Q("0.065 in")),
    Sketcher.Constraint("DistanceX", 12, 2, 6, 2, Q("1.7 in")),
    Sketcher.Constraint("DistanceY", -1, 1, 2, 3, Q("4.975 in")),
    Sketcher.Constraint("DistanceY", 7, 1, 7, 2, Q("45.652937 mm")),
    Sketcher.Constraint("DistanceY", -1, 1, 6, 3, Q("78.138532 mm")),
])
pad5 = body.newObject("PartDesign::Pad", "Pad004")
pad5.Profile = sketch15
pad5.Length = Q("0.1 in")
doc.recompute()

fillet5 = body.newObject("PartDesign::Fillet", "Fillet004")
fillet5.Base = (pad5, edges_at(pad5, [(0, -2.54, 73.025)]))
fillet5.Radius = Q("0.05 in")
doc.recompute()

fillet6 = body.newObject("PartDesign::Fillet", "Fillet005")
fillet6.Base = (fillet5, edges_at(fillet5, [(27.94, -1.905, 73.025), (-27.94, -1.905, 73.025)]))
fillet6.Radius = Q("0.05 in")

doc.recompute()
